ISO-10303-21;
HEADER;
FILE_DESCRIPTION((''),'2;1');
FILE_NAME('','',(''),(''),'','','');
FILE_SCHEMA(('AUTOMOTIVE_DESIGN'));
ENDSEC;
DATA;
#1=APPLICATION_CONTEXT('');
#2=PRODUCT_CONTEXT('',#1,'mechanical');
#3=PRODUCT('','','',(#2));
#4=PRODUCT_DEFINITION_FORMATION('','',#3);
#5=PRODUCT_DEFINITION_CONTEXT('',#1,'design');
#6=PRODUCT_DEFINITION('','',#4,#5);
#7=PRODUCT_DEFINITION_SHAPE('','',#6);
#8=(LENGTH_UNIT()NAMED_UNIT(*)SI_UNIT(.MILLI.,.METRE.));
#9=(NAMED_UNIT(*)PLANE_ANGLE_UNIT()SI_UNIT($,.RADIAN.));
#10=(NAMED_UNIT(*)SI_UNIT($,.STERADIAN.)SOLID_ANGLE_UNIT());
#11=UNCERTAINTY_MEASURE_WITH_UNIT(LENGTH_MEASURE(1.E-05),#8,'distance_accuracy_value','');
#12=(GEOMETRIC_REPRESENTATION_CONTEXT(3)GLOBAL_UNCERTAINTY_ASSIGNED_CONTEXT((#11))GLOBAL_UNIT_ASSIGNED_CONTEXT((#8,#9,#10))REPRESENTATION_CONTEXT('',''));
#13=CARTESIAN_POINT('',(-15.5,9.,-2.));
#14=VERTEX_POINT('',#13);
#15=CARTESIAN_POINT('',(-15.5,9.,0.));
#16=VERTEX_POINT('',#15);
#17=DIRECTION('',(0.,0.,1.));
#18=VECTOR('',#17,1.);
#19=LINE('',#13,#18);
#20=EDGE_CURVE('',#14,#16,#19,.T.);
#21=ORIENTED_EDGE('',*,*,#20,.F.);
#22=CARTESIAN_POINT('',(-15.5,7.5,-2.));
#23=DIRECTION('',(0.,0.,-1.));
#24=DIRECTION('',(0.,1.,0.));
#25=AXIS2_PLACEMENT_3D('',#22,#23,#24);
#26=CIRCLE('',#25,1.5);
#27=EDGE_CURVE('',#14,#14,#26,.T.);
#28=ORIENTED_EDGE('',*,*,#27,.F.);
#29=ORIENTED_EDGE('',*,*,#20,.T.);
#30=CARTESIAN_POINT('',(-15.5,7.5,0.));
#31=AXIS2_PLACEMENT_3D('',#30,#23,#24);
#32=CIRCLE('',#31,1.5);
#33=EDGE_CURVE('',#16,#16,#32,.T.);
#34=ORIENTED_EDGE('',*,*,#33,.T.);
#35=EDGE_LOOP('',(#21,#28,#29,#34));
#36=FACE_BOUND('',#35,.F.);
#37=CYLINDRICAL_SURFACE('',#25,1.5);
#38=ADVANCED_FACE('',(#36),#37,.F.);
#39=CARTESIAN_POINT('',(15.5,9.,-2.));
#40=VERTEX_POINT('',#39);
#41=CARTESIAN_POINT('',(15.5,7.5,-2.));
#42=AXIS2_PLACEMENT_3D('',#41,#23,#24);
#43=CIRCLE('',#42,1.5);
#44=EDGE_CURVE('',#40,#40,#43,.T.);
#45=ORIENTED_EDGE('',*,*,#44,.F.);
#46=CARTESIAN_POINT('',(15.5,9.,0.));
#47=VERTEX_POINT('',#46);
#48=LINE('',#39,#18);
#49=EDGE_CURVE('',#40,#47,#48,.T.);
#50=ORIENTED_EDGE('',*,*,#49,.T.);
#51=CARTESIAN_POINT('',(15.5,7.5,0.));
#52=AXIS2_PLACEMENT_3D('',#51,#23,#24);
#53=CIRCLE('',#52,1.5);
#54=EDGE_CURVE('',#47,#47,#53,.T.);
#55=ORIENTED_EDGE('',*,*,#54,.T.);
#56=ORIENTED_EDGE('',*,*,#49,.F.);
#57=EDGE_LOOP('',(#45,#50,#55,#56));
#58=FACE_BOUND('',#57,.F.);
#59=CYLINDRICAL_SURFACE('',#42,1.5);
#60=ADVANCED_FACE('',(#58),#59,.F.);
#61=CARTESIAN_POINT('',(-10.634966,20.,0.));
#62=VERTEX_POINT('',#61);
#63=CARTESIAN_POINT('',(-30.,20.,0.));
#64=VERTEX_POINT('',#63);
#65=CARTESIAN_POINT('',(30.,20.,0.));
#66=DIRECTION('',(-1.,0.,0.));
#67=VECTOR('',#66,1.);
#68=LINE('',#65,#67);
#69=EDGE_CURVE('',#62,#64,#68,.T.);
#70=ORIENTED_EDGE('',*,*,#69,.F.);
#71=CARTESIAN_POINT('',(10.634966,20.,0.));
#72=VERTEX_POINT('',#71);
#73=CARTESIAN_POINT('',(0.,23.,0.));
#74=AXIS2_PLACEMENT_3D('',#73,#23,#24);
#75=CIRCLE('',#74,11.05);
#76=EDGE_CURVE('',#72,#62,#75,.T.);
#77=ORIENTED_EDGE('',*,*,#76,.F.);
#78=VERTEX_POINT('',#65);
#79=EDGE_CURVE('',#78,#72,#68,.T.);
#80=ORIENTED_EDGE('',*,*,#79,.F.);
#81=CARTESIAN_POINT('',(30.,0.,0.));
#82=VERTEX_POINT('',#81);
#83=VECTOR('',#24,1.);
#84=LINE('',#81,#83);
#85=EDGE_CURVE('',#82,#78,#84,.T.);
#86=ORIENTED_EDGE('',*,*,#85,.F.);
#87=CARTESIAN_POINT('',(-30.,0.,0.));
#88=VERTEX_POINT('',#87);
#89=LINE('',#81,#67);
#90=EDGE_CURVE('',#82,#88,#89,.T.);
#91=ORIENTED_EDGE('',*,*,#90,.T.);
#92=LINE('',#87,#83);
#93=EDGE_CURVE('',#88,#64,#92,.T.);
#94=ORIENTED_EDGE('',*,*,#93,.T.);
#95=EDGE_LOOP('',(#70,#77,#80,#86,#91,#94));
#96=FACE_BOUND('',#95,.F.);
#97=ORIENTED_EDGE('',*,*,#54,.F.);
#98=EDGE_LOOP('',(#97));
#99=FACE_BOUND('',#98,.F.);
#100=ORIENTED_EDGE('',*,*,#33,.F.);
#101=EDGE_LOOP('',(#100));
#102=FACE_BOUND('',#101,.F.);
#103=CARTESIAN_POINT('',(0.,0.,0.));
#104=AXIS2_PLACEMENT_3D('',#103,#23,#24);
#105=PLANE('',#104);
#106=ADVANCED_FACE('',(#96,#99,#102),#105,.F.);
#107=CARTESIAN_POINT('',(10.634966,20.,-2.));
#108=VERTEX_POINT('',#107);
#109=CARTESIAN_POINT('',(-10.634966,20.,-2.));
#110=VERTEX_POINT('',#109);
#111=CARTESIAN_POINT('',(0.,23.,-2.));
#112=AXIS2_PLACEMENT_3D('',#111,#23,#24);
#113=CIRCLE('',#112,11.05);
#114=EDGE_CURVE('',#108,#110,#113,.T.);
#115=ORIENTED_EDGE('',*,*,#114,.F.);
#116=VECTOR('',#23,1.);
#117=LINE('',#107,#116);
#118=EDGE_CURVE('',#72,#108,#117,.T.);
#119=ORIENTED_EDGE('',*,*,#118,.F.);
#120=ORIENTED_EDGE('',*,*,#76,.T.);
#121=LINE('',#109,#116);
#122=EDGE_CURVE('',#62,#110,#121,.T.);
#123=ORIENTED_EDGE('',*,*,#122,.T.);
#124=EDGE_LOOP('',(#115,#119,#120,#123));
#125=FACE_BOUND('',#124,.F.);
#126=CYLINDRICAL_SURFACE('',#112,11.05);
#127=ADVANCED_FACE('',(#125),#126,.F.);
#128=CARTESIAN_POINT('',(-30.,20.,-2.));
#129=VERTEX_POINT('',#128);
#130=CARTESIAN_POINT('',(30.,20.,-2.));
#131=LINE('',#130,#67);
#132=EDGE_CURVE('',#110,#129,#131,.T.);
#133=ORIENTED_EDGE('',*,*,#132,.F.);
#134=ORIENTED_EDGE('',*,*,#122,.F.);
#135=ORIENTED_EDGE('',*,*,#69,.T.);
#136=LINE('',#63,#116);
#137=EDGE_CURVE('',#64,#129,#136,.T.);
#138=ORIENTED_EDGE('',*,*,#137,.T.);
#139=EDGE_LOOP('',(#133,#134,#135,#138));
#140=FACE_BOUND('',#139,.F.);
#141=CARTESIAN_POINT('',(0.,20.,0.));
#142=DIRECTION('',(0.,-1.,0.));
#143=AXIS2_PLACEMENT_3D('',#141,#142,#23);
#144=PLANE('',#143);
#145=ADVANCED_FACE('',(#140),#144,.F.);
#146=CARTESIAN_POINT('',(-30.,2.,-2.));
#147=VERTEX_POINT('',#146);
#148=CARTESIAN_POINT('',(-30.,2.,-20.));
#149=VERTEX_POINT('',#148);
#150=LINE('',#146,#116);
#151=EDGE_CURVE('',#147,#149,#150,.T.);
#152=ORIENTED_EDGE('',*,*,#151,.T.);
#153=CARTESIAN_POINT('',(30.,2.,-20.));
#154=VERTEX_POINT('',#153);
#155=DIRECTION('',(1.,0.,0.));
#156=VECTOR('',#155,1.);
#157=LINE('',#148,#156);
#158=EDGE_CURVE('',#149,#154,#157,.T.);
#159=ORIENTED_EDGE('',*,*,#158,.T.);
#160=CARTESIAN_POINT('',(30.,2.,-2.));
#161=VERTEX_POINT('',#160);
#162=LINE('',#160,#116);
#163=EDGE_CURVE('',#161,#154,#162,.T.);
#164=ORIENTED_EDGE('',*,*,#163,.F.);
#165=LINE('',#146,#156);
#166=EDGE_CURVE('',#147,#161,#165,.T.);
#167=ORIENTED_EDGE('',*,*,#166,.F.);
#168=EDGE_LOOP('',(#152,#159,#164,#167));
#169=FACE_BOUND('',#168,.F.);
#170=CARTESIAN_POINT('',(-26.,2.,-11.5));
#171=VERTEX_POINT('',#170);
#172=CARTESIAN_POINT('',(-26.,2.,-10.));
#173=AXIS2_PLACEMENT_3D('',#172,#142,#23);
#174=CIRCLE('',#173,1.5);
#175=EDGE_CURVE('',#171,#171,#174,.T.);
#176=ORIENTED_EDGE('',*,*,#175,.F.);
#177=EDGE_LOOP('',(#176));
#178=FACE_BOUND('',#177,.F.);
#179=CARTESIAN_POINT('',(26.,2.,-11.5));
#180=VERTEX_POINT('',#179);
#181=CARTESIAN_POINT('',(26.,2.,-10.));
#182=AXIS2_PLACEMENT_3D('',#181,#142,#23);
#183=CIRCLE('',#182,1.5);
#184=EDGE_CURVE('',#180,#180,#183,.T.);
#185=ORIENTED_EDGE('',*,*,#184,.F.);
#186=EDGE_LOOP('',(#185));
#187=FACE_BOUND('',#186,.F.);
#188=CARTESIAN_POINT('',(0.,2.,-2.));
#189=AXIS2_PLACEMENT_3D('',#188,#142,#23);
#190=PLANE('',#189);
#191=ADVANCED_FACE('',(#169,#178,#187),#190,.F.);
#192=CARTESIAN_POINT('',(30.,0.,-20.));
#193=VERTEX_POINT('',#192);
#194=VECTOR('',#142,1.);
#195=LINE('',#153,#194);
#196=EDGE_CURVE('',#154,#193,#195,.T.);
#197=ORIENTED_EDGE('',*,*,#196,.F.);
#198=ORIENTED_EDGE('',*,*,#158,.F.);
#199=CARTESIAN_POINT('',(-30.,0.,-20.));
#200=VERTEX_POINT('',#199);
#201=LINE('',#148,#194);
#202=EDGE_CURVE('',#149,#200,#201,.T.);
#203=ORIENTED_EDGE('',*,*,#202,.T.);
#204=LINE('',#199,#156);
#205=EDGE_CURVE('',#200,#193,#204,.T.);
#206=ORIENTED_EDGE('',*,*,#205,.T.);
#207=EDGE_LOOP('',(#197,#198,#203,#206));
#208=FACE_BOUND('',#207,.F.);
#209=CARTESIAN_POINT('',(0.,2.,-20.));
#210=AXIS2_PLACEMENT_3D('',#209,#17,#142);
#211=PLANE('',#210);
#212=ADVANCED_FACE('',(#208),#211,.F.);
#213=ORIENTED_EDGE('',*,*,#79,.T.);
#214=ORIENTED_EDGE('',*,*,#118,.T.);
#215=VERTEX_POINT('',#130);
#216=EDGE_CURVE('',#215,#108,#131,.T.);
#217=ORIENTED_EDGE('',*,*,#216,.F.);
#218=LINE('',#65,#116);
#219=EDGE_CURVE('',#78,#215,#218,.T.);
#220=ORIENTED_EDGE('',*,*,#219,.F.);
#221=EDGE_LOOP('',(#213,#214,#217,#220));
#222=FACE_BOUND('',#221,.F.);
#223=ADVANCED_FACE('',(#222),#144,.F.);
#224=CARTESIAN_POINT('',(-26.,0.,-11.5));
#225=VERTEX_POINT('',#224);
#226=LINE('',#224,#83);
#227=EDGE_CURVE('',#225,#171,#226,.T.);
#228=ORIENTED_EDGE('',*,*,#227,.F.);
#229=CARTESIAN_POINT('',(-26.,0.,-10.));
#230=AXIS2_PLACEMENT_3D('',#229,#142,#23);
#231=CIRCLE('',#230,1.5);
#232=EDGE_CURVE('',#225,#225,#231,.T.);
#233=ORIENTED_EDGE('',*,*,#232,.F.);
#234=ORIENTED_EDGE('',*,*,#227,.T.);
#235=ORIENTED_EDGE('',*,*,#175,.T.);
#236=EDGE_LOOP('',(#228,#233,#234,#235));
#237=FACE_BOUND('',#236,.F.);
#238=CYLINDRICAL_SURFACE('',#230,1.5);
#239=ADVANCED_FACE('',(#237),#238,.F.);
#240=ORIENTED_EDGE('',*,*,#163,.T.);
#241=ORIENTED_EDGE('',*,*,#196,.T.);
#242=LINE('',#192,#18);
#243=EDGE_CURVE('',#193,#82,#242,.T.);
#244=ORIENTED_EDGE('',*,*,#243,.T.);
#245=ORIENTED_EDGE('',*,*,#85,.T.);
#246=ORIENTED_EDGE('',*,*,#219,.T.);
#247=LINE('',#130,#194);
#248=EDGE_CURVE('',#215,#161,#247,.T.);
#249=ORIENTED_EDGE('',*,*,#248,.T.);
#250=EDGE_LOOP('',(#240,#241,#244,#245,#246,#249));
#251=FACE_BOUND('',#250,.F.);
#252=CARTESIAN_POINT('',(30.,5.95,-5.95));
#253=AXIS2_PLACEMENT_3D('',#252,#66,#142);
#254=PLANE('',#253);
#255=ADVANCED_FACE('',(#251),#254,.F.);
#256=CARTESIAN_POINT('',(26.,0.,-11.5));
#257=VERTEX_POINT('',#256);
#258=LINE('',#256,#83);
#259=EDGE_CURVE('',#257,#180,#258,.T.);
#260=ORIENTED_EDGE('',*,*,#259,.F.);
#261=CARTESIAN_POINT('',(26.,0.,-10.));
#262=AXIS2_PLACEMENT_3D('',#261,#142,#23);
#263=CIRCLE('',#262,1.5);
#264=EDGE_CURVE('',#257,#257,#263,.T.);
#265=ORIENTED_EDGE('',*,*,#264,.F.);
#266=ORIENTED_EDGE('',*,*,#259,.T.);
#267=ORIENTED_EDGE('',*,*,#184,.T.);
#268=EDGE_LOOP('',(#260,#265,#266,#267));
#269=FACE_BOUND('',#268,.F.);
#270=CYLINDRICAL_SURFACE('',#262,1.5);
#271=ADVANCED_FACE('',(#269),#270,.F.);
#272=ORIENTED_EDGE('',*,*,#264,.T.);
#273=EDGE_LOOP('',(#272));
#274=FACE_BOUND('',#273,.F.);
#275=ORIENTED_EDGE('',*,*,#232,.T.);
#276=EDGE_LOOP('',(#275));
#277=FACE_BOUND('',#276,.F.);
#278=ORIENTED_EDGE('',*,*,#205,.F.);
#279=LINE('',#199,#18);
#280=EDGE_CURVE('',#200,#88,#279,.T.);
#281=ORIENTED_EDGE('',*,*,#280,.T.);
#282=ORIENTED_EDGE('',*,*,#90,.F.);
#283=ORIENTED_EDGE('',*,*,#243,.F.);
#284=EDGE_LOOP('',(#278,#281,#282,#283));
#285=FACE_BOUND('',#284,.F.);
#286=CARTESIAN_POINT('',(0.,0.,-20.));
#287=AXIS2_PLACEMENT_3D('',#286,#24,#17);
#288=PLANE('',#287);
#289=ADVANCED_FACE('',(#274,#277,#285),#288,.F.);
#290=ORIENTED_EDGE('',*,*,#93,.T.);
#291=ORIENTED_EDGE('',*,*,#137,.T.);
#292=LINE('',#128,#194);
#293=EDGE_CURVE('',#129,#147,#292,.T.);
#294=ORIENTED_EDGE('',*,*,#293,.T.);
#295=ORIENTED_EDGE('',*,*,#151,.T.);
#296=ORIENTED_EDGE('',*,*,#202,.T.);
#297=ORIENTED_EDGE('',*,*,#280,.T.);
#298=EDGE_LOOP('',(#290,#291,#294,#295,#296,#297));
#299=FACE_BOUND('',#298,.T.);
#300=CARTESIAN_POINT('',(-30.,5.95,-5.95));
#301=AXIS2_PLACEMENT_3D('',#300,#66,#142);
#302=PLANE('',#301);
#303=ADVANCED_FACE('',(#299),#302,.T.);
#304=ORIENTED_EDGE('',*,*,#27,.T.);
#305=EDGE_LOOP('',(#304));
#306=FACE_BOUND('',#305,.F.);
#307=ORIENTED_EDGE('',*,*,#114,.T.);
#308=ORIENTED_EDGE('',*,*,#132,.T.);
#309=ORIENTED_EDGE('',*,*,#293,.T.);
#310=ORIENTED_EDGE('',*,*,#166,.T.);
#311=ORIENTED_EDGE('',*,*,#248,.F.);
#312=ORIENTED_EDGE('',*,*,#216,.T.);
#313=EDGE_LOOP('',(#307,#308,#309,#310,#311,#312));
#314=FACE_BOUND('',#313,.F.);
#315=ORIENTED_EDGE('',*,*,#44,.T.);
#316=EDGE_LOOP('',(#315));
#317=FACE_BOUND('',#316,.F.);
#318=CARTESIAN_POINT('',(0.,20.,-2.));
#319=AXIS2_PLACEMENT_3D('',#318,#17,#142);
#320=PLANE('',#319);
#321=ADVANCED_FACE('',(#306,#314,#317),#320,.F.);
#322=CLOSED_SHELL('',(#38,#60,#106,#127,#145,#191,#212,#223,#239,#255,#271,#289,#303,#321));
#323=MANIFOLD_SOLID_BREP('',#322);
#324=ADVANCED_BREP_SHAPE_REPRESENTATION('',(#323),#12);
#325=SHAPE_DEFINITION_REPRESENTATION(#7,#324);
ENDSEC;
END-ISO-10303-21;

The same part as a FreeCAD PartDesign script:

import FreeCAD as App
import Part
import Sketcher
Q = App.Units.Quantity


def add_polygon(sketch, points):
    """Adds a closed chain of lines whose ends are joined by coincident constraints."""
    first, n = sketch.GeometryCount, len(points)
    for a, b in zip(points, points[1:] + points[:1]):
        sketch.addGeometry(Part.LineSegment(App.Vector(*a, 0), App.Vector(*b, 0)), False)
    for i in range(n):
        sketch.addConstraint(Sketcher.Constraint("Coincident", first + i, 2, first + (i + 1) % n, 1))

doc = App.newDocument("Part")
body = doc.addObject("PartDesign::Body", "Body")

sketch1 = body.newObject("Sketcher::SketchObject", "Sketch")
sketch1.AttachmentSupport = (doc.getObject("XZ_Plane"), [""])
sketch1.MapMode = "FlatFace"
add_polygon(sketch1, [(-10, 0), (-10, -20), (-8, -20), (-8, -2), (10, -2), (10, 0)])
sketch1.addConstraint(Sketcher.Constraint("Vertical", 0))
sketch1.addConstraint(Sketcher.Constraint("Horizontal", 1))
sketch1.addConstraint(Sketcher.Constraint("Vertical", 2))
sketch1.addConstraint(Sketcher.Constraint("Horizontal", 3))
sketch1.addConstraint(Sketcher.Constraint("Vertical", 4))
sketch1.addConstraint(Sketcher.Constraint("Horizontal", 5))
sketch1.addConstraint(Sketcher.Constraint("Symmetric", 4, 2, 5, 2, -1, 1))
sketch1.addConstraint(Sketcher.Constraint("Equal", 5, 0))
sketch1.addConstraint(Sketcher.Constraint("Equal", 3, 2))
sketch1.addConstraint(Sketcher.Constraint("DistanceX", 1, 1, 1, 2, Q("2 mm")))
sketch1.addConstraint(Sketcher.Constraint("DistanceX", 3, 1, 3, 2, Q("18 mm")))
pad1 = body.newObject("PartDesign::Pad", "Pad")
pad1.Profile = sketch1
pad1.Type = "TwoLengths"
pad1.Length = 30
pad1.Length2 = 30

sketch2 = body.newObject("Sketcher::SketchObject", "Sketch001")
sketch2.AttachmentSupport = (doc.getObject("XY_Plane"), [""])
sketch2.MapMode = "FlatFace"
sketch2.AttachmentOffset = App.Placement(App.Vector(0, 0, -2), App.Rotation())
sketch2.addGeometry(Part.Circle(App.Vector(13, 0, 0), App.Vector(0, 0, 1), 11.1), False)
sketch2.addGeometry(Part.Circle(App.Vector(-2.5, -15.5, 0), App.Vector(0, 0, 1), 1.5), False)
sketch2.addGeometry(Part.Circle(App.Vector(28.5, -15.5, 0), App.Vector(0, 0, 1), 1.5), False)
sketch2.addGeometry(Part.Circle(App.Vector(28.5, 15.5, 0), App.Vector(0, 0, 1), 1.5), False)
sketch2.addGeometry(Part.Circle(App.Vector(-2.5, 15.5, 0), App.Vector(0, 0, 1), 1.5), False)
sketch2.addConstraint(Sketcher.Constraint("Equal", 1, 2))
sketch2.addConstraint(Sketcher.Constraint("Equal", 2, 3))
sketch2.addConstraint(Sketcher.Constraint("Equal", 3, 4))
sketch2.addConstraint(Sketcher.Constraint("Symmetric", 2, 3, 3, 3, -1))
sketch2.addConstraint(Sketcher.Constraint("Symmetric", 1, 3, 4, 3, -1))
sketch2.addConstraint(Sketcher.Constraint("PointOnObject", 0, 3, -1))
sketch2.addConstraint(Sketcher.Constraint("Horizontal", 1, 3, 2, 3))
sketch2.addConstraint(Sketcher.Constraint("Diameter", 1, Q("3 mm")))
sketch2.addConstraint(Sketcher.Constraint("Diameter", 0, Q("22.1 mm")))
sketch2.addConstraint(Sketcher.Constraint("DistanceX", -1, 1, 0, 3, Q("13 mm")))
sketch2.addConstraint(Sketcher.Constraint("DistanceX", 1, 3, 2, 3, Q("31 mm")))
sketch2.addConstraint(Sketcher.Constraint("DistanceY", 2, 3, 3, 3, Q("31 mm")))
sketch2.addConstraint(Sketcher.Constraint("DistanceX", 1, 3, -1, 1, Q("2.5 mm")))
pocket1 = body.newObject("PartDesign::Pocket", "Pocket")
pocket1.Profile = sketch2
pocket1.Length = 5.54
pocket1.Reversed = True

sketch3 = body.newObject("Sketcher::SketchObject", "Sketch002")
sketch3.AttachmentSupport = (doc.getObject("YZ_Plane"), [""])
sketch3.MapMode = "FlatFace"
sketch3.AttachmentOffset = App.Placement(App.Vector(0, 0, -10), App.Rotation())
sketch3.addGeometry(Part.Circle(App.Vector(-26, -10, 0), App.Vector(0, 0, 1), 1.5), False)
sketch3.addGeometry(Part.Circle(App.Vector(26, -10, 0), App.Vector(0, 0, 1), 1.5), False)
sketch3.addConstraint(Sketcher.Constraint("Equal", 0, 1))
sketch3.addConstraint(Sketcher.Constraint("Symmetric", 0, 3, 1, 3, -2))
sketch3.addConstraint(Sketcher.Constraint("Diameter", 0, Q("3 mm")))
sketch3.addConstraint(Sketcher.Constraint("DistanceX", 0, 3, -1, 1, Q("26 mm")))
sketch3.addConstraint(Sketcher.Constraint("DistanceY", 0, 3, -1, 1, Q("10 mm")))
pocket2 = body.newObject("PartDesign::Pocket", "Pocket001")
pocket2.Profile = sketch3
pocket2.Type = "ThroughAll"
pocket2.Reversed = True
body2 = doc.addObject("PartDesign::Body", "Body001")
doc.recompute()

body.Placement = App.Placement(App.Vector(0, 10, 0), App.Rotation(App.Vector(0, 0, -1), 270))
boolean = body2.newObject("PartDesign::Boolean", "Boolean")
boolean.Type = "Fuse"
boolean.addObjects([body])

doc.recompute()
